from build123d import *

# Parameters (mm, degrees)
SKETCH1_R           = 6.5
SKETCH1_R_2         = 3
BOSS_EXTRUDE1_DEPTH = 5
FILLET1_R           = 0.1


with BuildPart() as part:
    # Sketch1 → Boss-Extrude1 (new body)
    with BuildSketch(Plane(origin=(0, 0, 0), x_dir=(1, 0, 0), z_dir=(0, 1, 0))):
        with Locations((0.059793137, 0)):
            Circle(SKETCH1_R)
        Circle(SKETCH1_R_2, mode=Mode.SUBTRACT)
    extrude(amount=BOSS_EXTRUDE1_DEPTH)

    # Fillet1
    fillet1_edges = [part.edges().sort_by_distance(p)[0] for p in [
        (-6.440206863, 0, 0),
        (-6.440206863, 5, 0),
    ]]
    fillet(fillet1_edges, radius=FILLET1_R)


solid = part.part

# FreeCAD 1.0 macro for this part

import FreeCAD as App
import Part
import Sketcher

V = App.Vector


def edges_at(feature, points):
    """Names of the edges that pass closest to the given points."""
    edges = feature.Shape.Edges
    near = lambda p: min(range(len(edges)), key=lambda i: edges[i].distToShape(Part.Vertex(*p))[0])
    return sorted({f"Edge{near(p) + 1}" for p in points})

doc = App.newDocument("Part")
params = doc.addObject("Spreadsheet::Sheet", "Params")
for row, (alias, value) in enumerate([
    ("sketch1_diameter", "13 mm"),
    ("sketch1_diameter2", "6 mm"),
    ("pad1_length", "5 mm"),
    ("fillet_radius", "0.1 mm"),
], start=1):
    params.set(f"A{row}", alias)
    params.set(f"B{row}", "=" + value)
    params.setAlias(f"B{row}", alias)

body = doc.addObject("PartDesign::Body", "Body")

# Sketch on XZ plane
sketch1 = doc.addObject("Sketcher::SketchObject", "Sketch")
body.addObject(sketch1)
sketch1.AttachmentSupport = (doc.XZ_Plane, [""])
sketch1.MapMode = "FlatFace"
sketch1.addGeometry([
    Part.Circle(V(0.059793, 0, 0), V(0, 0, 1), 6.5),
    Part.Circle(V(0, 0, 0), V(0, 0, 1), 3),
], False)
sketch1.addConstraint([
    Sketcher.Constraint("Coincident", 1, 3, -1, 1),
    Sketcher.Constraint("PointOnObject", 0, 3, -1),
    Sketcher.Constraint("Diameter", 0, 13.0),
    Sketcher.Constraint("Diameter", 1, 6.0),
    Sketcher.Constraint("DistanceX", -1, 1, 0, 3, 0.059793),
])
sketch1.setExpression("Constraints[2]", "Params.sketch1_diameter")
sketch1.setExpression("Constraints[3]", "Params.sketch1_diameter2")
pad1 = doc.addObject("PartDesign::Pad", "Pad")
body.addObject(pad1)
pad1.Profile = sketch1
pad1.setExpression("Length", "Params.pad1_length")
pad1.Reversed = True
doc.recompute()

fillet = doc.addObject("PartDesign::Fillet", "Fillet")
body.addObject(fillet)
fillet.Base = (pad1, edges_at(pad1, [(-6.44, 0, 0), (-6.44, 5, 0)]))
fillet.setExpression("Radius", "Params.fillet_radius")

doc.recompute()
